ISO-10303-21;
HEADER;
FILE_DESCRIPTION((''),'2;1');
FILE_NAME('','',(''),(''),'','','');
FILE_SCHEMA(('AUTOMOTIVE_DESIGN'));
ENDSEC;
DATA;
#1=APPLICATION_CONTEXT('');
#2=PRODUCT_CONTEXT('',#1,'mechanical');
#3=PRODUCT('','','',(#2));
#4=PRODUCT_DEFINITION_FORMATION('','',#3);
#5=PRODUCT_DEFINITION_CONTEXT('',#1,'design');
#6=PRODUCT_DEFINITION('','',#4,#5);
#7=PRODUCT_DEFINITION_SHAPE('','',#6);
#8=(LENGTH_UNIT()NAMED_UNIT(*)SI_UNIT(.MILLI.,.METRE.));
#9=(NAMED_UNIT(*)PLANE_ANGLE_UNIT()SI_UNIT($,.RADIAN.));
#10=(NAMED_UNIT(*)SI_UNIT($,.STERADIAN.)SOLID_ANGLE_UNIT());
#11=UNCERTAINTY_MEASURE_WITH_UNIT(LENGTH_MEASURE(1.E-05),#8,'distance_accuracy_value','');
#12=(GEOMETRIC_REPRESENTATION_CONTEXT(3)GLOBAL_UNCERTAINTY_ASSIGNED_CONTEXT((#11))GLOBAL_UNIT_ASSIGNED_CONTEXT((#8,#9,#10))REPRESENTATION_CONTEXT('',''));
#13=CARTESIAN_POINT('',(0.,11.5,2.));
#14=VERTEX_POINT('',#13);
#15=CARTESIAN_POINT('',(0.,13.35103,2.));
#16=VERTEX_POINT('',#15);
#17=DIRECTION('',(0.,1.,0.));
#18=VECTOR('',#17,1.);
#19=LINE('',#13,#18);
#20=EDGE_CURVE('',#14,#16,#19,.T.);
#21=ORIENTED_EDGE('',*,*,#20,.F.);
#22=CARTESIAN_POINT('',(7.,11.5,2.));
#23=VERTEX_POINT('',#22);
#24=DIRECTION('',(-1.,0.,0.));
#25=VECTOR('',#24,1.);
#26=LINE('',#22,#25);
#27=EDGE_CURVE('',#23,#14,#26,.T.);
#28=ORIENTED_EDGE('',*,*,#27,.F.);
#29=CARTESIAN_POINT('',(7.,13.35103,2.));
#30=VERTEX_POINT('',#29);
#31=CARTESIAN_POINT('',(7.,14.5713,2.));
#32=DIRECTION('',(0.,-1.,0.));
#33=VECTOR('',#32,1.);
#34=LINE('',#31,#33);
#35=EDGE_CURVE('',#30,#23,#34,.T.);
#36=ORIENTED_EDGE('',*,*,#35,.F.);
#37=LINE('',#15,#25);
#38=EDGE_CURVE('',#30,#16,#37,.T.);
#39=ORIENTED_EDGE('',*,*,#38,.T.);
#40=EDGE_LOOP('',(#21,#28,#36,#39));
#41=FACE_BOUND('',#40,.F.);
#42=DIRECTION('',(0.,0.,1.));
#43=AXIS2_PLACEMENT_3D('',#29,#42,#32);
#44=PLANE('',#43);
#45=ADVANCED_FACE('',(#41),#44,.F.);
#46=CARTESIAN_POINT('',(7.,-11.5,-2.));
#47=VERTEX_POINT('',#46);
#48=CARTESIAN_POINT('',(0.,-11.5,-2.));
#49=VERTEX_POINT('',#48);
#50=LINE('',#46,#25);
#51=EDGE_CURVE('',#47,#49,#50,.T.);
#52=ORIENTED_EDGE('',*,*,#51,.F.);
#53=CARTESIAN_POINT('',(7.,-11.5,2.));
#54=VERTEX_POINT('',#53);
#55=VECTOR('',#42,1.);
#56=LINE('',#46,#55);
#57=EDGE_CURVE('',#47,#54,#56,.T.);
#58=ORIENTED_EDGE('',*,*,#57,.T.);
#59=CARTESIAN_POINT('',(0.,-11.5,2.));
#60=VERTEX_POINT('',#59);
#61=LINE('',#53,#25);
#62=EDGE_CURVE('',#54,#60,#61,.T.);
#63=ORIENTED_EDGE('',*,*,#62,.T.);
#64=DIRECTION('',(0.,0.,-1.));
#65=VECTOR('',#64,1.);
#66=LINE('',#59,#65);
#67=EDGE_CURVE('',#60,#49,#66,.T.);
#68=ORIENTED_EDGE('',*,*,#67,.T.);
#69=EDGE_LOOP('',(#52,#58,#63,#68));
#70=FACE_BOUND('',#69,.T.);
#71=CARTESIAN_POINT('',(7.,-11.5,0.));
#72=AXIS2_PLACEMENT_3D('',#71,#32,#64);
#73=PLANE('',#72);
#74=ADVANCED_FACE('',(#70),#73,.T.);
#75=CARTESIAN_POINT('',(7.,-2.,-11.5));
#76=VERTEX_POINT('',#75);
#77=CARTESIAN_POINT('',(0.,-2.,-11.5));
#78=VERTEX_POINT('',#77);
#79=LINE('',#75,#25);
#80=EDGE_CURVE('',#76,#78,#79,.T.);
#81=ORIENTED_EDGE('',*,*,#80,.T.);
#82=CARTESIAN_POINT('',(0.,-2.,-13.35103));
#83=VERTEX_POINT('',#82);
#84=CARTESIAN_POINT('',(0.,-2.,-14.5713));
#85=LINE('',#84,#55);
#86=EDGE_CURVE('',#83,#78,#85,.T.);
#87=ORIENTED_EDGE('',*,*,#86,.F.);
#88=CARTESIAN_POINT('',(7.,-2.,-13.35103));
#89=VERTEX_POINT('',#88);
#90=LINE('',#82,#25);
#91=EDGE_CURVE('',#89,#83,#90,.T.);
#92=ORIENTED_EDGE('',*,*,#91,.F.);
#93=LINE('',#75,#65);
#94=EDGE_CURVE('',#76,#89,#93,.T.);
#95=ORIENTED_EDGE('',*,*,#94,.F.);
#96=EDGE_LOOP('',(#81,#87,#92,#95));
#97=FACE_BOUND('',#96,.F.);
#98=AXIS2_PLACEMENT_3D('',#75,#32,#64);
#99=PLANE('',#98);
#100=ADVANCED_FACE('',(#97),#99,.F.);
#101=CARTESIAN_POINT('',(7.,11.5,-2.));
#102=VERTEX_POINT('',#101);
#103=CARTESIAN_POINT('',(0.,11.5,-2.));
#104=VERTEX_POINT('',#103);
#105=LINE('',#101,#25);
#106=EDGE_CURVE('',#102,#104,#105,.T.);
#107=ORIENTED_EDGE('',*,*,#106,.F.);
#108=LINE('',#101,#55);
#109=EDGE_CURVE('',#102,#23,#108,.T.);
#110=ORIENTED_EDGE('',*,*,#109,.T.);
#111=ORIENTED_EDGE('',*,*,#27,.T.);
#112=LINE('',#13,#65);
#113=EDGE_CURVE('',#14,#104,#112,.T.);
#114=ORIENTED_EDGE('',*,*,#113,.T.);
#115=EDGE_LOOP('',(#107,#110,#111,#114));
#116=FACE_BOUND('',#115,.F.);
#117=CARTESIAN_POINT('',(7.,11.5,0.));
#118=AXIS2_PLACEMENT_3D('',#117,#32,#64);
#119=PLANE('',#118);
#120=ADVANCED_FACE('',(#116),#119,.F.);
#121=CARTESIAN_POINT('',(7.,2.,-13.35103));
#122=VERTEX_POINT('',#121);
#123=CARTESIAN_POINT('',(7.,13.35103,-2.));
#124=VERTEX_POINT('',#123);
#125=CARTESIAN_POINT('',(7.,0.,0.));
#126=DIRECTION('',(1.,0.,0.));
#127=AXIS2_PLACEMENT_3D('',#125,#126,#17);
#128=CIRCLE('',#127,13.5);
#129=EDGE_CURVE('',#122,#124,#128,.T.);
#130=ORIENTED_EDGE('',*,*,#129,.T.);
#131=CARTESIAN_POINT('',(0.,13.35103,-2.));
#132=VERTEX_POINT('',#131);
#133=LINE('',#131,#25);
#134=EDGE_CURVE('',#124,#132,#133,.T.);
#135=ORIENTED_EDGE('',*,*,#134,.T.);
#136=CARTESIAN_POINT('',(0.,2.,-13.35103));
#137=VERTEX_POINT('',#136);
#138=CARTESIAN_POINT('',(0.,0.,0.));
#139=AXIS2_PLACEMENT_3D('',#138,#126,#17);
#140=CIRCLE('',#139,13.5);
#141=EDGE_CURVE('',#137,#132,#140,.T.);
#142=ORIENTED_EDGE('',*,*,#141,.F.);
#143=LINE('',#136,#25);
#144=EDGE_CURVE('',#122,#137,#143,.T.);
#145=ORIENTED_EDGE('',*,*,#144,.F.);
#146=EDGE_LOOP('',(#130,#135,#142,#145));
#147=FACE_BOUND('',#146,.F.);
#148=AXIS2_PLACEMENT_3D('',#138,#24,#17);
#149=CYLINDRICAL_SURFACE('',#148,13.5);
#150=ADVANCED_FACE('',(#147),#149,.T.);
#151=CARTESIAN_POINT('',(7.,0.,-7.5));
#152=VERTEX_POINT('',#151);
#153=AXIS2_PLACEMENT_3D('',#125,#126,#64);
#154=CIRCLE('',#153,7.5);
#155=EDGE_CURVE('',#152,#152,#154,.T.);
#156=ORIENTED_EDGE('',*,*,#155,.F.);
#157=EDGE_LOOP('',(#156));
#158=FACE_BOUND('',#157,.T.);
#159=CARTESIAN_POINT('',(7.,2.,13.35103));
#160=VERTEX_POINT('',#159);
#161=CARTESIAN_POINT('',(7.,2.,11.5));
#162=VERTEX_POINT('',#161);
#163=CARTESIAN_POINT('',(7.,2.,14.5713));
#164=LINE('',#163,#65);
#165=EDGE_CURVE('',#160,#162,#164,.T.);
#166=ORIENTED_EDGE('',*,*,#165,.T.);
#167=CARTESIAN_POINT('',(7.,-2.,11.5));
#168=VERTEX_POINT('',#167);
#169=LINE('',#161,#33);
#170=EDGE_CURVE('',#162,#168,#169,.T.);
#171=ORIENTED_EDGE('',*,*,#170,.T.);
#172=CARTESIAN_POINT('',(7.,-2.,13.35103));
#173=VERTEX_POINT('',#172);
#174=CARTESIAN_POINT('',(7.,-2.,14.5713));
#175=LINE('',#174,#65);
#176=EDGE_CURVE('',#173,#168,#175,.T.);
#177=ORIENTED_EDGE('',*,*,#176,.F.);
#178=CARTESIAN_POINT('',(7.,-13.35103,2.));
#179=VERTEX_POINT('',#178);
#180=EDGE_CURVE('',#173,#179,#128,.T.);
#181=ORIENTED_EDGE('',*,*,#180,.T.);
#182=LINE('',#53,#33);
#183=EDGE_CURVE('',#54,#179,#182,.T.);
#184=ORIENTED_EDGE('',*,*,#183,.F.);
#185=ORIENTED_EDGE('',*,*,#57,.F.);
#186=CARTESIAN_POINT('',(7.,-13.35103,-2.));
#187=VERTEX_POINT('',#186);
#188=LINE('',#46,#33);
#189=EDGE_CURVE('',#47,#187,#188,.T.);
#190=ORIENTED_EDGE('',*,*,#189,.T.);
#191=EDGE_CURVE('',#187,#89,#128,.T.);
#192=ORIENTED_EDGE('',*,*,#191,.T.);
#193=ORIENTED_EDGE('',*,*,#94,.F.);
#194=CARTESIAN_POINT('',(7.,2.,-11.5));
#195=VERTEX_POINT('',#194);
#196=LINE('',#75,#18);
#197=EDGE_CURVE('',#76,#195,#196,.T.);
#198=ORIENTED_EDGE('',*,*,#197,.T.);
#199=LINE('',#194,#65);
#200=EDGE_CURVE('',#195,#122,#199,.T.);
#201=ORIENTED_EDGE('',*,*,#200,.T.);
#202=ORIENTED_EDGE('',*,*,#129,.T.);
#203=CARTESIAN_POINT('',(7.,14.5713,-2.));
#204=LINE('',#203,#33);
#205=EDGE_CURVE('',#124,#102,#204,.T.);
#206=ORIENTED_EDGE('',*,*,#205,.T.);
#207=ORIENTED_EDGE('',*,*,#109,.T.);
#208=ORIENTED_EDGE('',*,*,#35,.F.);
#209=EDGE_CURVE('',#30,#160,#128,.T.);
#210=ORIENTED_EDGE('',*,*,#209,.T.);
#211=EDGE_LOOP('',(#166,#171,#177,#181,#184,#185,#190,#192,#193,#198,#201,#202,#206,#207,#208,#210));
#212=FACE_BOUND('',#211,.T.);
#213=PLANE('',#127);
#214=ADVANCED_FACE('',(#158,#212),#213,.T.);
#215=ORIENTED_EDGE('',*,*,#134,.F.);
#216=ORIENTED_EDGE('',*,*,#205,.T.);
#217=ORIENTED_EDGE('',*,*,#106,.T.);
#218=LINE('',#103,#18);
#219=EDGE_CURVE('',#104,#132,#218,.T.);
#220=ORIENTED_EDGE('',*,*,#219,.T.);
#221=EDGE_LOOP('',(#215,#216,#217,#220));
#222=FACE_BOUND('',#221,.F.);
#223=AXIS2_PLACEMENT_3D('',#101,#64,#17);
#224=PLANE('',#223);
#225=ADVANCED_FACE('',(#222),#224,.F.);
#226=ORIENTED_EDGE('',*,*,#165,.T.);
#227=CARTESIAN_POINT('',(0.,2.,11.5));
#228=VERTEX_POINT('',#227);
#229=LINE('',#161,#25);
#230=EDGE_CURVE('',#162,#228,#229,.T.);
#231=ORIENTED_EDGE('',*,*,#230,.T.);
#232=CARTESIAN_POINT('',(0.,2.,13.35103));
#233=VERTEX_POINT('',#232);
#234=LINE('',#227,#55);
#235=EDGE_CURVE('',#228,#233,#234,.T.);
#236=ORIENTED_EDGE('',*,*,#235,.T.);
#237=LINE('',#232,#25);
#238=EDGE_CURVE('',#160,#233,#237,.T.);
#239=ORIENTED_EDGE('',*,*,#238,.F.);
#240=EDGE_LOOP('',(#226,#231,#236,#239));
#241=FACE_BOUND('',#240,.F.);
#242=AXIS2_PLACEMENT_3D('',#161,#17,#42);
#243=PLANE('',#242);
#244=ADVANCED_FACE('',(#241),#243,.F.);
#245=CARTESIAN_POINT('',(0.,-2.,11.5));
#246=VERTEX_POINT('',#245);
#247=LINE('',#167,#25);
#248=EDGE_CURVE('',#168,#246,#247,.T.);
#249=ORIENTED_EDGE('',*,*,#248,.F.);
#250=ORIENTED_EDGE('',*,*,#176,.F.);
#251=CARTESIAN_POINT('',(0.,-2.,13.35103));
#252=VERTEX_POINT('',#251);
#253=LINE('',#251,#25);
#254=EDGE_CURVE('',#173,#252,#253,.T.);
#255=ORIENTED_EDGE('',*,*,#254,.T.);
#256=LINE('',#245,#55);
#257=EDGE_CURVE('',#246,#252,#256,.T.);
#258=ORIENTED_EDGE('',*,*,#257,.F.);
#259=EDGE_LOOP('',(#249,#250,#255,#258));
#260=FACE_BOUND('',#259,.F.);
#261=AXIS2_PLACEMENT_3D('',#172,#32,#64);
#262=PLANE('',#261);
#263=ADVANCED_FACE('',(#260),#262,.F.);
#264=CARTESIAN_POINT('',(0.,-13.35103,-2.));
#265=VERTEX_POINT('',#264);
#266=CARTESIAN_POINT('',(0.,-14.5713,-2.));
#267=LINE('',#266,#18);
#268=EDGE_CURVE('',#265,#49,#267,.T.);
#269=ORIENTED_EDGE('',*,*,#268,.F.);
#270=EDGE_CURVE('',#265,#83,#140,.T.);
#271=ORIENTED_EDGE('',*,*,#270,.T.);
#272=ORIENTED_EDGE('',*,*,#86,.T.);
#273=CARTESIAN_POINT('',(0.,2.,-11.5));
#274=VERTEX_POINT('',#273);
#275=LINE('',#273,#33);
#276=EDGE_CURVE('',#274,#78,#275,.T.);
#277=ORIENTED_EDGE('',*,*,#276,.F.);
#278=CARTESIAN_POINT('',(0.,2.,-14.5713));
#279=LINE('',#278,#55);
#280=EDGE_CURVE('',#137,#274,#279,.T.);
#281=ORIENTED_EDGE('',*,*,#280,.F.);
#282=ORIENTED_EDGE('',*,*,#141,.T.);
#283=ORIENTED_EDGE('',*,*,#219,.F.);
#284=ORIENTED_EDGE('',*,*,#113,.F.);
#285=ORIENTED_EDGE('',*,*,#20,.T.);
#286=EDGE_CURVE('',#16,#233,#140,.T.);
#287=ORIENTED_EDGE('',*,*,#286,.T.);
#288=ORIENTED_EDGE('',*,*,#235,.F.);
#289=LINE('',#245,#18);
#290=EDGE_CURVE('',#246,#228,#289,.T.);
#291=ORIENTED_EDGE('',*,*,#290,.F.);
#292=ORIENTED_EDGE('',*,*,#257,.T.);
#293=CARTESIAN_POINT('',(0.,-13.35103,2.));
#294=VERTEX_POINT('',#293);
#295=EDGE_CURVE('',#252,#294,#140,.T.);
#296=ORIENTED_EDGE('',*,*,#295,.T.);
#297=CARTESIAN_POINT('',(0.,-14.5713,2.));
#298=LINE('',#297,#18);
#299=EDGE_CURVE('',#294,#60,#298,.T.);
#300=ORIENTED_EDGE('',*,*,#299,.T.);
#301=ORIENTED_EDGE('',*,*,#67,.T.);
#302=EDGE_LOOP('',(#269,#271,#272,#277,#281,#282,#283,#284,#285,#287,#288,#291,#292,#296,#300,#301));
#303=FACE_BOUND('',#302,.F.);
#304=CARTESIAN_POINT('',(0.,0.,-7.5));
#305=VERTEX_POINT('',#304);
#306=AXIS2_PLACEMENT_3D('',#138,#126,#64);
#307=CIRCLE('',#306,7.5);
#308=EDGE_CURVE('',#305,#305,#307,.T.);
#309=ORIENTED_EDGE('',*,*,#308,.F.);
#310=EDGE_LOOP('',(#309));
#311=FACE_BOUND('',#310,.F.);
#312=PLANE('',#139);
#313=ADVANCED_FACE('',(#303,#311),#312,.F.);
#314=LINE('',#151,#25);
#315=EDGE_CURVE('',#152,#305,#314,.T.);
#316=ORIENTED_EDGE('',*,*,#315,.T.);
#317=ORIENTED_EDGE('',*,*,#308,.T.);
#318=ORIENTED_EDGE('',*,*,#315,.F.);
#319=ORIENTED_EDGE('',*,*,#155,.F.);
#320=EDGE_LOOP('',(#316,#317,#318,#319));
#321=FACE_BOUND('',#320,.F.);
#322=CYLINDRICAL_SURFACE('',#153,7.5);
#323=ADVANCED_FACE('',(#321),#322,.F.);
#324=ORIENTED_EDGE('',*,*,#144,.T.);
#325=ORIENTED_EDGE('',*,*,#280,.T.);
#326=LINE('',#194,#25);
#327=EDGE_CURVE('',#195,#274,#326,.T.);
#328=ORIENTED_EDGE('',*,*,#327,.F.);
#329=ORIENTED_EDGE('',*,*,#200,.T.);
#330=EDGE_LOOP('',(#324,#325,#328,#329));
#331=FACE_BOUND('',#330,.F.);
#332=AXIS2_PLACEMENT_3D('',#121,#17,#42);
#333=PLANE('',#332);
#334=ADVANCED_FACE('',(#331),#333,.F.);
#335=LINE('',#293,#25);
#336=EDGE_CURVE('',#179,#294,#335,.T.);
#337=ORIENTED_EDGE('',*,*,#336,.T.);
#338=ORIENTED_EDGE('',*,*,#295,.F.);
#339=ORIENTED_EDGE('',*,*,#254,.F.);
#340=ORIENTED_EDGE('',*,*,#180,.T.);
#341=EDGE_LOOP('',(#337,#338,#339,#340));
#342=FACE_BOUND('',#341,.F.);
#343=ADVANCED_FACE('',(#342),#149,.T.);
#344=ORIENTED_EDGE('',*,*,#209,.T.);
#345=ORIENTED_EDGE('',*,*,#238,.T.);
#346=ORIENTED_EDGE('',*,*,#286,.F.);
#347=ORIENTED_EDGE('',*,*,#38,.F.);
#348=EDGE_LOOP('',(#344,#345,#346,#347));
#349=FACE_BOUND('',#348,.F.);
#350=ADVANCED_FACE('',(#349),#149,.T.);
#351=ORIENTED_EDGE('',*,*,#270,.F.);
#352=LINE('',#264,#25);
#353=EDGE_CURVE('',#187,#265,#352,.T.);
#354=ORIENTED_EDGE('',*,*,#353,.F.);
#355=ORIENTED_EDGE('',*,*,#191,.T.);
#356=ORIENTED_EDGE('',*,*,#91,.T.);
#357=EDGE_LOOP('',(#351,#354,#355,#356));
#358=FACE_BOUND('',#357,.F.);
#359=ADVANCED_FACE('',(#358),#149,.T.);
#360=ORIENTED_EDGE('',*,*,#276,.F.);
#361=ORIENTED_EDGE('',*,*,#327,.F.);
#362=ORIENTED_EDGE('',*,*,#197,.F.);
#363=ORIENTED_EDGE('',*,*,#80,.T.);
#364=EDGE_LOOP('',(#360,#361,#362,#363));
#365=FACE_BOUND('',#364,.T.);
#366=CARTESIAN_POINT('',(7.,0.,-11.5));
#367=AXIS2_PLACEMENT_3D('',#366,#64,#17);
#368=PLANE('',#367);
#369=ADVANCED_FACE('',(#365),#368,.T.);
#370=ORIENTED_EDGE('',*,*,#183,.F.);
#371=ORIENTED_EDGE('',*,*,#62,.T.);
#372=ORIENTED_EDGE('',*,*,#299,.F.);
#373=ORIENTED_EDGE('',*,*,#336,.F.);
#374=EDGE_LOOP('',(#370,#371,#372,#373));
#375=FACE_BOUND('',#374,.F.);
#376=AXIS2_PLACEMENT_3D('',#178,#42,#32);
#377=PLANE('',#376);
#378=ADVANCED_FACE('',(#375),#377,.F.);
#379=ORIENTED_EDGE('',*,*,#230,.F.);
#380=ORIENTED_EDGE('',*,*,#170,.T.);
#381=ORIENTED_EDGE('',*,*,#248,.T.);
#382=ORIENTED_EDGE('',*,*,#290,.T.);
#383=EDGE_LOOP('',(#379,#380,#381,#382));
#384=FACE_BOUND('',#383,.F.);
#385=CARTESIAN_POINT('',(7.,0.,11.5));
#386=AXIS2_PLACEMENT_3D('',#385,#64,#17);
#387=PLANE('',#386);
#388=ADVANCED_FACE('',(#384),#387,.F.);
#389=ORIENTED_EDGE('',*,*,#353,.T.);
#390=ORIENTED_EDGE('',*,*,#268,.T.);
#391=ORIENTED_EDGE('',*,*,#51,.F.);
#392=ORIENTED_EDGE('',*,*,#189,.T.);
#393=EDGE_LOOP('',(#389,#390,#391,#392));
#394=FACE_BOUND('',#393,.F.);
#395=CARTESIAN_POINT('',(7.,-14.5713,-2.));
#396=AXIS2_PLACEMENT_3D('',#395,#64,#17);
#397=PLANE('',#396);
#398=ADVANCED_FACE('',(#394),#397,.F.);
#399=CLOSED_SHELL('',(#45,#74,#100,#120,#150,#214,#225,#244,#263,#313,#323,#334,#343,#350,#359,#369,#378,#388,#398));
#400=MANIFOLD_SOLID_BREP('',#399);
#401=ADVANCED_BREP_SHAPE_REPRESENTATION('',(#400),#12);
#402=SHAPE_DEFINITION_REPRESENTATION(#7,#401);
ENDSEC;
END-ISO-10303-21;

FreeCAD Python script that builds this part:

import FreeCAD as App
import Part
import Sketcher
from FreeCAD import Vector
Q = App.Units.Quantity


def add_polygon(sketch, points):
    """Adds a closed chain of lines whose ends are joined by coincident constraints."""
    first, n = sketch.GeometryCount, len(points)
    for a, b in zip(points, points[1:] + points[:1]):
        sketch.addGeometry(Part.LineSegment(App.Vector(*a, 0), App.Vector(*b, 0)), False)
    for i in range(n):
        sketch.addConstraint(Sketcher.Constraint("Coincident", first + i, 2, first + (i + 1) % n, 1))

doc = App.newDocument("Part")
params = doc.addObject("Spreadsheet::Sheet", "Params")
for row, (alias, value) in enumerate([
    ("sketch1_diameter", "27 mm"),
    ("pad1_length", "7 mm"),
    ("sketch2_diameter", "15 mm"),
    ("pocket1_length", "7 mm"),
    ("sketch3_width", "4 mm"),
    ("pocket2_length", "7 mm"),
], start=1):
    params.set(f"A{row}", alias)
    params.set(f"B{row}", "=" + value)
    params.setAlias(f"B{row}", alias)

body = doc.addObject("PartDesign::Body", "Body")

sketch1 = body.newObject("Sketcher::SketchObject", "Sketch")
sketch1.AttachmentSupport = (doc.getObject("YZ_Plane"), [""])
sketch1.MapMode = "FlatFace"
sketch1.addGeometry(Part.Circle(Vector(0, 0, 0), Vector(0, 0, 1), 13.5), False)
sketch1.addConstraint(Sketcher.Constraint("Coincident", 0, 3, -1, 1))
sketch1.addConstraint(Sketcher.Constraint("Diameter", 0, Q("27 mm")))
sketch1.setExpression("Constraints[1]", "Params.sketch1_diameter")
pad1 = body.newObject("PartDesign::Pad", "Pad")
pad1.Profile = sketch1
pad1.setExpression("Length", "Params.pad1_length")

sketch2 = body.newObject("Sketcher::SketchObject", "Sketch001")
sketch2.AttachmentSupport = (doc.getObject("YZ_Plane"), [""])
sketch2.MapMode = "FlatFace"
sketch2.AttachmentOffset = App.Placement(Vector(0, 0, 7), App.Rotation())
sketch2.addGeometry(Part.Circle(Vector(0, 0, 0), Vector(0, 0, 1), 7.5), False)
sketch2.addConstraint(Sketcher.Constraint("Coincident", 0, 3, -1, 1))
sketch2.addConstraint(Sketcher.Constraint("Diameter", 0, Q("15 mm")))
sketch2.setExpression("Constraints[1]", "Params.sketch2_diameter")
pocket1 = body.newObject("PartDesign::Pocket", "Pocket")
pocket1.Profile = sketch2
pocket1.setExpression("Length", "Params.pocket1_length")

sketch3 = body.newObject("Sketcher::SketchObject", "Sketch002")
sketch3.AttachmentSupport = (doc.getObject("YZ_Plane"), [""])
sketch3.MapMode = "FlatFace"
sketch3.AttachmentOffset = App.Placement(Vector(0, 0, 7), App.Rotation())
add_polygon(sketch3, [(2, -11.5), (-2, -11.5), (-2, -14.5713), (2, -14.5713)])
add_polygon(sketch3, [(11.5, -2), (14.5713, -2), (14.5713, 2), (11.5, 2)])
add_polygon(sketch3, [(-14.5713, -2), (-11.5, -2), (-11.5, 2), (-14.5713, 2)])
add_polygon(sketch3, [(2, 11.5), (2, 14.5713), (-2, 14.5713), (-2, 11.5)])
sketch3.addConstraint(Sketcher.Constraint("Horizontal", 0))
sketch3.addConstraint(Sketcher.Constraint("Vertical", 1))
sketch3.addConstraint(Sketcher.Constraint("Horizontal", 2))
sketch3.addConstraint(Sketcher.Constraint("Vertical", 3))
sketch3.addConstraint(Sketcher.Constraint("Horizontal", 4))
sketch3.addConstraint(Sketcher.Constraint("Vertical", 5))
sketch3.addConstraint(Sketcher.Constraint("Horizontal", 6))
sketch3.addConstraint(Sketcher.Constraint("Vertical", 7))
sketch3.addConstraint(Sketcher.Constraint("Horizontal", 8))
sketch3.addConstraint(Sketcher.Constraint("Vertical", 9))
sketch3.addConstraint(Sketcher.Constraint("Horizontal", 10))
sketch3.addConstraint(Sketcher.Constraint("Vertical", 11))
sketch3.addConstraint(Sketcher.Constraint("Vertical", 12))
sketch3.addConstraint(Sketcher.Constraint("Horizontal", 13))
sketch3.addConstraint(Sketcher.Constraint("Vertical", 14))
sketch3.addConstraint(Sketcher.Constraint("Horizontal", 15))
sketch3.addConstraint(Sketcher.Constraint("Symmetric", 6, 2, 8, 2, -1, 1))
sketch3.addConstraint(Sketcher.Constraint("Symmetric", 4, 2, 10, 2, -1, 1))
sketch3.addConstraint(Sketcher.Constraint("Symmetric", 1, 2, 12, 2, -1, 1))
sketch3.addConstraint(Sketcher.Constraint("Symmetric", 3, 2, 14, 2, -1, 1))
sketch3.addConstraint(Sketcher.Constraint("Horizontal", 7, 2, 8, 2))
sketch3.addConstraint(Sketcher.Constraint("Vertical", 3, 2, 12, 2))
sketch3.addConstraint(Sketcher.Constraint("Equal", 10, 1))
sketch3.addConstraint(Sketcher.Constraint("Equal", 15, 5))
sketch3.addConstraint(Sketcher.Constraint("DistanceX", 0, 2, 0, 1, Q("4 mm")))
sketch3.addConstraint(Sketcher.Constraint("DistanceX", 8, 2, 7, 2, Q("23 mm")))
sketch3.addConstraint(Sketcher.Constraint("DistanceY", 0, 2, -1, 1, Q("11.5 mm")))
sketch3.addConstraint(Sketcher.Constraint("DistanceX", 4, 1, 4, 2, Q("3.0713 mm")))
sketch3.setExpression("Constraints[40]", "Params.sketch3_width")
pocket2 = body.newObject("PartDesign::Pocket", "Pocket001")
pocket2.Profile = sketch3
pocket2.setExpression("Length", "Params.pocket2_length")

doc.recompute()
